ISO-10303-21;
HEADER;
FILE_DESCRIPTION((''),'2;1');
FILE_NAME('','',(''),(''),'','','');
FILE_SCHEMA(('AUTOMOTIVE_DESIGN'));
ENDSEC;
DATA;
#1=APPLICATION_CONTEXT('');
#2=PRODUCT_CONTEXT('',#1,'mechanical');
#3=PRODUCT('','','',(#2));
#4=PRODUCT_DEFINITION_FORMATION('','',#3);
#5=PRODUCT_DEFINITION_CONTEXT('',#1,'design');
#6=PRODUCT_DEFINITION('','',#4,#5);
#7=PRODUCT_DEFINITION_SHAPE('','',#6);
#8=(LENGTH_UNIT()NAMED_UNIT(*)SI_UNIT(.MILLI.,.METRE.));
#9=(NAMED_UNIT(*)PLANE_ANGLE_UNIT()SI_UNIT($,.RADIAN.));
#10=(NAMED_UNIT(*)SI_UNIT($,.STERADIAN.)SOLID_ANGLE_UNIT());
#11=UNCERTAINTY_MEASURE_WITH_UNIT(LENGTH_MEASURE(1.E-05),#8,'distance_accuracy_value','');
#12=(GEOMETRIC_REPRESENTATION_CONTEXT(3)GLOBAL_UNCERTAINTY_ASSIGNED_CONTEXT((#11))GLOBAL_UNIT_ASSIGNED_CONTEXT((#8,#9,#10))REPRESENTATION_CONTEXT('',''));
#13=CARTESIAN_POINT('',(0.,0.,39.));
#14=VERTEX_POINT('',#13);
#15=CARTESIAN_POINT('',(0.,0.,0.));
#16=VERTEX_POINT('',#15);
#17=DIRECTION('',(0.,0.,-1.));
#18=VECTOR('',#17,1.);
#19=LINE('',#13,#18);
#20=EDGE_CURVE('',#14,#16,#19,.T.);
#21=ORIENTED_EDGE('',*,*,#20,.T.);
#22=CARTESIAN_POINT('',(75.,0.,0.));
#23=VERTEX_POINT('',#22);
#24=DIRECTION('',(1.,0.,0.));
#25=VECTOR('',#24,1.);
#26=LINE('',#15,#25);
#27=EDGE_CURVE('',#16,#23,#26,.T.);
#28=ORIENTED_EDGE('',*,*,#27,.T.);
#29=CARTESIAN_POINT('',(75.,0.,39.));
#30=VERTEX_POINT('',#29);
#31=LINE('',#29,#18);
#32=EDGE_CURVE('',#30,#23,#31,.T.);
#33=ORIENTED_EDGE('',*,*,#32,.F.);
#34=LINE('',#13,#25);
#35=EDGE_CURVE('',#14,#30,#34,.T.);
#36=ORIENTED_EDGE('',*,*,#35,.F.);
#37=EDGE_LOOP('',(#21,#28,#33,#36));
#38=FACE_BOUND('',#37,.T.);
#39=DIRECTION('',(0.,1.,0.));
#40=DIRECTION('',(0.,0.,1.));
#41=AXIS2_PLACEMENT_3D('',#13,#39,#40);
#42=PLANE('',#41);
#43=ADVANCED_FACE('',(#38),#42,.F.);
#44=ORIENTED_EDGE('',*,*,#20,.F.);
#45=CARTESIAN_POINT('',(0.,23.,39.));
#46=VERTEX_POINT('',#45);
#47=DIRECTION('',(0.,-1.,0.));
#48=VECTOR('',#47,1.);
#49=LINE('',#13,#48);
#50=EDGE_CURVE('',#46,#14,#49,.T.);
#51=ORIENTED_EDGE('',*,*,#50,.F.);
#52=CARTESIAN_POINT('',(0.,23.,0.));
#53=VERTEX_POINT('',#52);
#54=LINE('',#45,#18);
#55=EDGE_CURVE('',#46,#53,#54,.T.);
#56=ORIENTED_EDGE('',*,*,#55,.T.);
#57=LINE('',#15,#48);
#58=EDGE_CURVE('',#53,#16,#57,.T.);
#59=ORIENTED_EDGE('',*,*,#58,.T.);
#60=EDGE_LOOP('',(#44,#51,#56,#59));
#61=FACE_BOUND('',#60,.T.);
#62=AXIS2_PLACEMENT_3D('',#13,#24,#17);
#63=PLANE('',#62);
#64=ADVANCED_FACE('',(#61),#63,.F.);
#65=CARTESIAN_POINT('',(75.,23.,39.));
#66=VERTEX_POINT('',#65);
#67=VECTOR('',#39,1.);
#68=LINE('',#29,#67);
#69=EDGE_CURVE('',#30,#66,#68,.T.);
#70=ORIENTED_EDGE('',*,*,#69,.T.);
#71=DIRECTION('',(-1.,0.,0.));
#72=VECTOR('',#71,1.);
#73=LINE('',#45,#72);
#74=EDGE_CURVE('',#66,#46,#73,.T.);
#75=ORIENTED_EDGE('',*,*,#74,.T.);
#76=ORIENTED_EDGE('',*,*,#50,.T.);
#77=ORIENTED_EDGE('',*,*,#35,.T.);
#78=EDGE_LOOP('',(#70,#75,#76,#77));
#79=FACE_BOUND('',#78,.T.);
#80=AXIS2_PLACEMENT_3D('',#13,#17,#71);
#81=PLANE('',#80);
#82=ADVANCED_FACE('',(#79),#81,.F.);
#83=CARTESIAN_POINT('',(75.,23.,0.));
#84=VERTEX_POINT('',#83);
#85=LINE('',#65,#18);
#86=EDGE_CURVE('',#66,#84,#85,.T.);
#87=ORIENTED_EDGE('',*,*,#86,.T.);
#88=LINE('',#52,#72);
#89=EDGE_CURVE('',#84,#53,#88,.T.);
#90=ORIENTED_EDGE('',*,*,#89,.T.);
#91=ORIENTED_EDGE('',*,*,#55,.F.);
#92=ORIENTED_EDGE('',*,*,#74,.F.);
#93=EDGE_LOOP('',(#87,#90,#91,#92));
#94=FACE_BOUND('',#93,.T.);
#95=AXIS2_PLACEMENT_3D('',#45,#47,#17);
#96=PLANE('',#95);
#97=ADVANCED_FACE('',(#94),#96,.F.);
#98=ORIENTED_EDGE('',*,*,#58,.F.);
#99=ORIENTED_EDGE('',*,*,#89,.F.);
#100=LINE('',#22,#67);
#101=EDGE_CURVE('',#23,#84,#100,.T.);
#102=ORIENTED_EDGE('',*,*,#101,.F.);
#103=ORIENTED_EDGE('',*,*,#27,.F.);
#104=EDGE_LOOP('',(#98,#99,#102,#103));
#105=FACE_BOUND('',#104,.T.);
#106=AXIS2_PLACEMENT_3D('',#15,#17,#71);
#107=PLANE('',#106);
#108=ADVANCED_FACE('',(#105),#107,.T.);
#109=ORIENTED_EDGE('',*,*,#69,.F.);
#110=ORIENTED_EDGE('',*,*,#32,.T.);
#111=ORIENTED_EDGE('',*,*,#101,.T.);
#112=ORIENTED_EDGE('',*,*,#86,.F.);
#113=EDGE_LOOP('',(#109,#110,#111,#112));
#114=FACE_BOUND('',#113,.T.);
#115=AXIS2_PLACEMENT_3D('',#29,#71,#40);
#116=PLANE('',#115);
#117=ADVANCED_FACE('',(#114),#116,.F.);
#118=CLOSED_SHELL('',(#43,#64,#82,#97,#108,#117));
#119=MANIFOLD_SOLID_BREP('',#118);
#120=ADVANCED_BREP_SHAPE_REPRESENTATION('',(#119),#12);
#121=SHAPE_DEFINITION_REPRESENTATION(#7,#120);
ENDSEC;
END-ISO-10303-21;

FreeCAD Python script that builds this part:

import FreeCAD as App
import Part
import Sketcher
from FreeCAD import Vector

doc = App.newDocument("Part")
body = doc.addObject("PartDesign::Body", "Body")

sketch1 = body.newObject("Sketcher::SketchObject", "Sketch")
sketch1.AttachmentSupport = (doc.getObject("XY_Plane"), [""])
sketch1.MapMode = "FlatFace"
sketch1.addGeometry([
    Part.LineSegment(Vector(0, 23, 0), Vector(0, 0, 0)),
    Part.LineSegment(Vector(0, 0, 0), Vector(75, 0, 0)),
    Part.LineSegment(Vector(75, 0, 0), Vector(75, 23, 0)),
    Part.LineSegment(Vector(75, 23, 0), Vector(0, 23, 0)),
], False)
sketch1.addConstraint([
    Sketcher.Constraint("Coincident", 0, 2, 1, 1),
    Sketcher.Constraint("Coincident", 1, 2, 2, 1),
    Sketcher.Constraint("Coincident", 2, 2, 3, 1),
    Sketcher.Constraint("Coincident", 3, 2, 0, 1),
    Sketcher.Constraint("Vertical", 0),
    Sketcher.Constraint("Horizontal", 1),
    Sketcher.Constraint("Vertical", 2),
    Sketcher.Constraint("Horizontal", 3),
    Sketcher.Constraint("Coincident", 0, 2, -1, 1),
    Sketcher.Constraint("DistanceX", 1, 1, 1, 2, 75.0),
    Sketcher.Constraint("DistanceY", 0, 2, 0, 1, 23.0),
])
pad1 = body.newObject("PartDesign::Pad", "Pad")
pad1.Profile = sketch1
pad1.Length = 39

doc.recompute()
